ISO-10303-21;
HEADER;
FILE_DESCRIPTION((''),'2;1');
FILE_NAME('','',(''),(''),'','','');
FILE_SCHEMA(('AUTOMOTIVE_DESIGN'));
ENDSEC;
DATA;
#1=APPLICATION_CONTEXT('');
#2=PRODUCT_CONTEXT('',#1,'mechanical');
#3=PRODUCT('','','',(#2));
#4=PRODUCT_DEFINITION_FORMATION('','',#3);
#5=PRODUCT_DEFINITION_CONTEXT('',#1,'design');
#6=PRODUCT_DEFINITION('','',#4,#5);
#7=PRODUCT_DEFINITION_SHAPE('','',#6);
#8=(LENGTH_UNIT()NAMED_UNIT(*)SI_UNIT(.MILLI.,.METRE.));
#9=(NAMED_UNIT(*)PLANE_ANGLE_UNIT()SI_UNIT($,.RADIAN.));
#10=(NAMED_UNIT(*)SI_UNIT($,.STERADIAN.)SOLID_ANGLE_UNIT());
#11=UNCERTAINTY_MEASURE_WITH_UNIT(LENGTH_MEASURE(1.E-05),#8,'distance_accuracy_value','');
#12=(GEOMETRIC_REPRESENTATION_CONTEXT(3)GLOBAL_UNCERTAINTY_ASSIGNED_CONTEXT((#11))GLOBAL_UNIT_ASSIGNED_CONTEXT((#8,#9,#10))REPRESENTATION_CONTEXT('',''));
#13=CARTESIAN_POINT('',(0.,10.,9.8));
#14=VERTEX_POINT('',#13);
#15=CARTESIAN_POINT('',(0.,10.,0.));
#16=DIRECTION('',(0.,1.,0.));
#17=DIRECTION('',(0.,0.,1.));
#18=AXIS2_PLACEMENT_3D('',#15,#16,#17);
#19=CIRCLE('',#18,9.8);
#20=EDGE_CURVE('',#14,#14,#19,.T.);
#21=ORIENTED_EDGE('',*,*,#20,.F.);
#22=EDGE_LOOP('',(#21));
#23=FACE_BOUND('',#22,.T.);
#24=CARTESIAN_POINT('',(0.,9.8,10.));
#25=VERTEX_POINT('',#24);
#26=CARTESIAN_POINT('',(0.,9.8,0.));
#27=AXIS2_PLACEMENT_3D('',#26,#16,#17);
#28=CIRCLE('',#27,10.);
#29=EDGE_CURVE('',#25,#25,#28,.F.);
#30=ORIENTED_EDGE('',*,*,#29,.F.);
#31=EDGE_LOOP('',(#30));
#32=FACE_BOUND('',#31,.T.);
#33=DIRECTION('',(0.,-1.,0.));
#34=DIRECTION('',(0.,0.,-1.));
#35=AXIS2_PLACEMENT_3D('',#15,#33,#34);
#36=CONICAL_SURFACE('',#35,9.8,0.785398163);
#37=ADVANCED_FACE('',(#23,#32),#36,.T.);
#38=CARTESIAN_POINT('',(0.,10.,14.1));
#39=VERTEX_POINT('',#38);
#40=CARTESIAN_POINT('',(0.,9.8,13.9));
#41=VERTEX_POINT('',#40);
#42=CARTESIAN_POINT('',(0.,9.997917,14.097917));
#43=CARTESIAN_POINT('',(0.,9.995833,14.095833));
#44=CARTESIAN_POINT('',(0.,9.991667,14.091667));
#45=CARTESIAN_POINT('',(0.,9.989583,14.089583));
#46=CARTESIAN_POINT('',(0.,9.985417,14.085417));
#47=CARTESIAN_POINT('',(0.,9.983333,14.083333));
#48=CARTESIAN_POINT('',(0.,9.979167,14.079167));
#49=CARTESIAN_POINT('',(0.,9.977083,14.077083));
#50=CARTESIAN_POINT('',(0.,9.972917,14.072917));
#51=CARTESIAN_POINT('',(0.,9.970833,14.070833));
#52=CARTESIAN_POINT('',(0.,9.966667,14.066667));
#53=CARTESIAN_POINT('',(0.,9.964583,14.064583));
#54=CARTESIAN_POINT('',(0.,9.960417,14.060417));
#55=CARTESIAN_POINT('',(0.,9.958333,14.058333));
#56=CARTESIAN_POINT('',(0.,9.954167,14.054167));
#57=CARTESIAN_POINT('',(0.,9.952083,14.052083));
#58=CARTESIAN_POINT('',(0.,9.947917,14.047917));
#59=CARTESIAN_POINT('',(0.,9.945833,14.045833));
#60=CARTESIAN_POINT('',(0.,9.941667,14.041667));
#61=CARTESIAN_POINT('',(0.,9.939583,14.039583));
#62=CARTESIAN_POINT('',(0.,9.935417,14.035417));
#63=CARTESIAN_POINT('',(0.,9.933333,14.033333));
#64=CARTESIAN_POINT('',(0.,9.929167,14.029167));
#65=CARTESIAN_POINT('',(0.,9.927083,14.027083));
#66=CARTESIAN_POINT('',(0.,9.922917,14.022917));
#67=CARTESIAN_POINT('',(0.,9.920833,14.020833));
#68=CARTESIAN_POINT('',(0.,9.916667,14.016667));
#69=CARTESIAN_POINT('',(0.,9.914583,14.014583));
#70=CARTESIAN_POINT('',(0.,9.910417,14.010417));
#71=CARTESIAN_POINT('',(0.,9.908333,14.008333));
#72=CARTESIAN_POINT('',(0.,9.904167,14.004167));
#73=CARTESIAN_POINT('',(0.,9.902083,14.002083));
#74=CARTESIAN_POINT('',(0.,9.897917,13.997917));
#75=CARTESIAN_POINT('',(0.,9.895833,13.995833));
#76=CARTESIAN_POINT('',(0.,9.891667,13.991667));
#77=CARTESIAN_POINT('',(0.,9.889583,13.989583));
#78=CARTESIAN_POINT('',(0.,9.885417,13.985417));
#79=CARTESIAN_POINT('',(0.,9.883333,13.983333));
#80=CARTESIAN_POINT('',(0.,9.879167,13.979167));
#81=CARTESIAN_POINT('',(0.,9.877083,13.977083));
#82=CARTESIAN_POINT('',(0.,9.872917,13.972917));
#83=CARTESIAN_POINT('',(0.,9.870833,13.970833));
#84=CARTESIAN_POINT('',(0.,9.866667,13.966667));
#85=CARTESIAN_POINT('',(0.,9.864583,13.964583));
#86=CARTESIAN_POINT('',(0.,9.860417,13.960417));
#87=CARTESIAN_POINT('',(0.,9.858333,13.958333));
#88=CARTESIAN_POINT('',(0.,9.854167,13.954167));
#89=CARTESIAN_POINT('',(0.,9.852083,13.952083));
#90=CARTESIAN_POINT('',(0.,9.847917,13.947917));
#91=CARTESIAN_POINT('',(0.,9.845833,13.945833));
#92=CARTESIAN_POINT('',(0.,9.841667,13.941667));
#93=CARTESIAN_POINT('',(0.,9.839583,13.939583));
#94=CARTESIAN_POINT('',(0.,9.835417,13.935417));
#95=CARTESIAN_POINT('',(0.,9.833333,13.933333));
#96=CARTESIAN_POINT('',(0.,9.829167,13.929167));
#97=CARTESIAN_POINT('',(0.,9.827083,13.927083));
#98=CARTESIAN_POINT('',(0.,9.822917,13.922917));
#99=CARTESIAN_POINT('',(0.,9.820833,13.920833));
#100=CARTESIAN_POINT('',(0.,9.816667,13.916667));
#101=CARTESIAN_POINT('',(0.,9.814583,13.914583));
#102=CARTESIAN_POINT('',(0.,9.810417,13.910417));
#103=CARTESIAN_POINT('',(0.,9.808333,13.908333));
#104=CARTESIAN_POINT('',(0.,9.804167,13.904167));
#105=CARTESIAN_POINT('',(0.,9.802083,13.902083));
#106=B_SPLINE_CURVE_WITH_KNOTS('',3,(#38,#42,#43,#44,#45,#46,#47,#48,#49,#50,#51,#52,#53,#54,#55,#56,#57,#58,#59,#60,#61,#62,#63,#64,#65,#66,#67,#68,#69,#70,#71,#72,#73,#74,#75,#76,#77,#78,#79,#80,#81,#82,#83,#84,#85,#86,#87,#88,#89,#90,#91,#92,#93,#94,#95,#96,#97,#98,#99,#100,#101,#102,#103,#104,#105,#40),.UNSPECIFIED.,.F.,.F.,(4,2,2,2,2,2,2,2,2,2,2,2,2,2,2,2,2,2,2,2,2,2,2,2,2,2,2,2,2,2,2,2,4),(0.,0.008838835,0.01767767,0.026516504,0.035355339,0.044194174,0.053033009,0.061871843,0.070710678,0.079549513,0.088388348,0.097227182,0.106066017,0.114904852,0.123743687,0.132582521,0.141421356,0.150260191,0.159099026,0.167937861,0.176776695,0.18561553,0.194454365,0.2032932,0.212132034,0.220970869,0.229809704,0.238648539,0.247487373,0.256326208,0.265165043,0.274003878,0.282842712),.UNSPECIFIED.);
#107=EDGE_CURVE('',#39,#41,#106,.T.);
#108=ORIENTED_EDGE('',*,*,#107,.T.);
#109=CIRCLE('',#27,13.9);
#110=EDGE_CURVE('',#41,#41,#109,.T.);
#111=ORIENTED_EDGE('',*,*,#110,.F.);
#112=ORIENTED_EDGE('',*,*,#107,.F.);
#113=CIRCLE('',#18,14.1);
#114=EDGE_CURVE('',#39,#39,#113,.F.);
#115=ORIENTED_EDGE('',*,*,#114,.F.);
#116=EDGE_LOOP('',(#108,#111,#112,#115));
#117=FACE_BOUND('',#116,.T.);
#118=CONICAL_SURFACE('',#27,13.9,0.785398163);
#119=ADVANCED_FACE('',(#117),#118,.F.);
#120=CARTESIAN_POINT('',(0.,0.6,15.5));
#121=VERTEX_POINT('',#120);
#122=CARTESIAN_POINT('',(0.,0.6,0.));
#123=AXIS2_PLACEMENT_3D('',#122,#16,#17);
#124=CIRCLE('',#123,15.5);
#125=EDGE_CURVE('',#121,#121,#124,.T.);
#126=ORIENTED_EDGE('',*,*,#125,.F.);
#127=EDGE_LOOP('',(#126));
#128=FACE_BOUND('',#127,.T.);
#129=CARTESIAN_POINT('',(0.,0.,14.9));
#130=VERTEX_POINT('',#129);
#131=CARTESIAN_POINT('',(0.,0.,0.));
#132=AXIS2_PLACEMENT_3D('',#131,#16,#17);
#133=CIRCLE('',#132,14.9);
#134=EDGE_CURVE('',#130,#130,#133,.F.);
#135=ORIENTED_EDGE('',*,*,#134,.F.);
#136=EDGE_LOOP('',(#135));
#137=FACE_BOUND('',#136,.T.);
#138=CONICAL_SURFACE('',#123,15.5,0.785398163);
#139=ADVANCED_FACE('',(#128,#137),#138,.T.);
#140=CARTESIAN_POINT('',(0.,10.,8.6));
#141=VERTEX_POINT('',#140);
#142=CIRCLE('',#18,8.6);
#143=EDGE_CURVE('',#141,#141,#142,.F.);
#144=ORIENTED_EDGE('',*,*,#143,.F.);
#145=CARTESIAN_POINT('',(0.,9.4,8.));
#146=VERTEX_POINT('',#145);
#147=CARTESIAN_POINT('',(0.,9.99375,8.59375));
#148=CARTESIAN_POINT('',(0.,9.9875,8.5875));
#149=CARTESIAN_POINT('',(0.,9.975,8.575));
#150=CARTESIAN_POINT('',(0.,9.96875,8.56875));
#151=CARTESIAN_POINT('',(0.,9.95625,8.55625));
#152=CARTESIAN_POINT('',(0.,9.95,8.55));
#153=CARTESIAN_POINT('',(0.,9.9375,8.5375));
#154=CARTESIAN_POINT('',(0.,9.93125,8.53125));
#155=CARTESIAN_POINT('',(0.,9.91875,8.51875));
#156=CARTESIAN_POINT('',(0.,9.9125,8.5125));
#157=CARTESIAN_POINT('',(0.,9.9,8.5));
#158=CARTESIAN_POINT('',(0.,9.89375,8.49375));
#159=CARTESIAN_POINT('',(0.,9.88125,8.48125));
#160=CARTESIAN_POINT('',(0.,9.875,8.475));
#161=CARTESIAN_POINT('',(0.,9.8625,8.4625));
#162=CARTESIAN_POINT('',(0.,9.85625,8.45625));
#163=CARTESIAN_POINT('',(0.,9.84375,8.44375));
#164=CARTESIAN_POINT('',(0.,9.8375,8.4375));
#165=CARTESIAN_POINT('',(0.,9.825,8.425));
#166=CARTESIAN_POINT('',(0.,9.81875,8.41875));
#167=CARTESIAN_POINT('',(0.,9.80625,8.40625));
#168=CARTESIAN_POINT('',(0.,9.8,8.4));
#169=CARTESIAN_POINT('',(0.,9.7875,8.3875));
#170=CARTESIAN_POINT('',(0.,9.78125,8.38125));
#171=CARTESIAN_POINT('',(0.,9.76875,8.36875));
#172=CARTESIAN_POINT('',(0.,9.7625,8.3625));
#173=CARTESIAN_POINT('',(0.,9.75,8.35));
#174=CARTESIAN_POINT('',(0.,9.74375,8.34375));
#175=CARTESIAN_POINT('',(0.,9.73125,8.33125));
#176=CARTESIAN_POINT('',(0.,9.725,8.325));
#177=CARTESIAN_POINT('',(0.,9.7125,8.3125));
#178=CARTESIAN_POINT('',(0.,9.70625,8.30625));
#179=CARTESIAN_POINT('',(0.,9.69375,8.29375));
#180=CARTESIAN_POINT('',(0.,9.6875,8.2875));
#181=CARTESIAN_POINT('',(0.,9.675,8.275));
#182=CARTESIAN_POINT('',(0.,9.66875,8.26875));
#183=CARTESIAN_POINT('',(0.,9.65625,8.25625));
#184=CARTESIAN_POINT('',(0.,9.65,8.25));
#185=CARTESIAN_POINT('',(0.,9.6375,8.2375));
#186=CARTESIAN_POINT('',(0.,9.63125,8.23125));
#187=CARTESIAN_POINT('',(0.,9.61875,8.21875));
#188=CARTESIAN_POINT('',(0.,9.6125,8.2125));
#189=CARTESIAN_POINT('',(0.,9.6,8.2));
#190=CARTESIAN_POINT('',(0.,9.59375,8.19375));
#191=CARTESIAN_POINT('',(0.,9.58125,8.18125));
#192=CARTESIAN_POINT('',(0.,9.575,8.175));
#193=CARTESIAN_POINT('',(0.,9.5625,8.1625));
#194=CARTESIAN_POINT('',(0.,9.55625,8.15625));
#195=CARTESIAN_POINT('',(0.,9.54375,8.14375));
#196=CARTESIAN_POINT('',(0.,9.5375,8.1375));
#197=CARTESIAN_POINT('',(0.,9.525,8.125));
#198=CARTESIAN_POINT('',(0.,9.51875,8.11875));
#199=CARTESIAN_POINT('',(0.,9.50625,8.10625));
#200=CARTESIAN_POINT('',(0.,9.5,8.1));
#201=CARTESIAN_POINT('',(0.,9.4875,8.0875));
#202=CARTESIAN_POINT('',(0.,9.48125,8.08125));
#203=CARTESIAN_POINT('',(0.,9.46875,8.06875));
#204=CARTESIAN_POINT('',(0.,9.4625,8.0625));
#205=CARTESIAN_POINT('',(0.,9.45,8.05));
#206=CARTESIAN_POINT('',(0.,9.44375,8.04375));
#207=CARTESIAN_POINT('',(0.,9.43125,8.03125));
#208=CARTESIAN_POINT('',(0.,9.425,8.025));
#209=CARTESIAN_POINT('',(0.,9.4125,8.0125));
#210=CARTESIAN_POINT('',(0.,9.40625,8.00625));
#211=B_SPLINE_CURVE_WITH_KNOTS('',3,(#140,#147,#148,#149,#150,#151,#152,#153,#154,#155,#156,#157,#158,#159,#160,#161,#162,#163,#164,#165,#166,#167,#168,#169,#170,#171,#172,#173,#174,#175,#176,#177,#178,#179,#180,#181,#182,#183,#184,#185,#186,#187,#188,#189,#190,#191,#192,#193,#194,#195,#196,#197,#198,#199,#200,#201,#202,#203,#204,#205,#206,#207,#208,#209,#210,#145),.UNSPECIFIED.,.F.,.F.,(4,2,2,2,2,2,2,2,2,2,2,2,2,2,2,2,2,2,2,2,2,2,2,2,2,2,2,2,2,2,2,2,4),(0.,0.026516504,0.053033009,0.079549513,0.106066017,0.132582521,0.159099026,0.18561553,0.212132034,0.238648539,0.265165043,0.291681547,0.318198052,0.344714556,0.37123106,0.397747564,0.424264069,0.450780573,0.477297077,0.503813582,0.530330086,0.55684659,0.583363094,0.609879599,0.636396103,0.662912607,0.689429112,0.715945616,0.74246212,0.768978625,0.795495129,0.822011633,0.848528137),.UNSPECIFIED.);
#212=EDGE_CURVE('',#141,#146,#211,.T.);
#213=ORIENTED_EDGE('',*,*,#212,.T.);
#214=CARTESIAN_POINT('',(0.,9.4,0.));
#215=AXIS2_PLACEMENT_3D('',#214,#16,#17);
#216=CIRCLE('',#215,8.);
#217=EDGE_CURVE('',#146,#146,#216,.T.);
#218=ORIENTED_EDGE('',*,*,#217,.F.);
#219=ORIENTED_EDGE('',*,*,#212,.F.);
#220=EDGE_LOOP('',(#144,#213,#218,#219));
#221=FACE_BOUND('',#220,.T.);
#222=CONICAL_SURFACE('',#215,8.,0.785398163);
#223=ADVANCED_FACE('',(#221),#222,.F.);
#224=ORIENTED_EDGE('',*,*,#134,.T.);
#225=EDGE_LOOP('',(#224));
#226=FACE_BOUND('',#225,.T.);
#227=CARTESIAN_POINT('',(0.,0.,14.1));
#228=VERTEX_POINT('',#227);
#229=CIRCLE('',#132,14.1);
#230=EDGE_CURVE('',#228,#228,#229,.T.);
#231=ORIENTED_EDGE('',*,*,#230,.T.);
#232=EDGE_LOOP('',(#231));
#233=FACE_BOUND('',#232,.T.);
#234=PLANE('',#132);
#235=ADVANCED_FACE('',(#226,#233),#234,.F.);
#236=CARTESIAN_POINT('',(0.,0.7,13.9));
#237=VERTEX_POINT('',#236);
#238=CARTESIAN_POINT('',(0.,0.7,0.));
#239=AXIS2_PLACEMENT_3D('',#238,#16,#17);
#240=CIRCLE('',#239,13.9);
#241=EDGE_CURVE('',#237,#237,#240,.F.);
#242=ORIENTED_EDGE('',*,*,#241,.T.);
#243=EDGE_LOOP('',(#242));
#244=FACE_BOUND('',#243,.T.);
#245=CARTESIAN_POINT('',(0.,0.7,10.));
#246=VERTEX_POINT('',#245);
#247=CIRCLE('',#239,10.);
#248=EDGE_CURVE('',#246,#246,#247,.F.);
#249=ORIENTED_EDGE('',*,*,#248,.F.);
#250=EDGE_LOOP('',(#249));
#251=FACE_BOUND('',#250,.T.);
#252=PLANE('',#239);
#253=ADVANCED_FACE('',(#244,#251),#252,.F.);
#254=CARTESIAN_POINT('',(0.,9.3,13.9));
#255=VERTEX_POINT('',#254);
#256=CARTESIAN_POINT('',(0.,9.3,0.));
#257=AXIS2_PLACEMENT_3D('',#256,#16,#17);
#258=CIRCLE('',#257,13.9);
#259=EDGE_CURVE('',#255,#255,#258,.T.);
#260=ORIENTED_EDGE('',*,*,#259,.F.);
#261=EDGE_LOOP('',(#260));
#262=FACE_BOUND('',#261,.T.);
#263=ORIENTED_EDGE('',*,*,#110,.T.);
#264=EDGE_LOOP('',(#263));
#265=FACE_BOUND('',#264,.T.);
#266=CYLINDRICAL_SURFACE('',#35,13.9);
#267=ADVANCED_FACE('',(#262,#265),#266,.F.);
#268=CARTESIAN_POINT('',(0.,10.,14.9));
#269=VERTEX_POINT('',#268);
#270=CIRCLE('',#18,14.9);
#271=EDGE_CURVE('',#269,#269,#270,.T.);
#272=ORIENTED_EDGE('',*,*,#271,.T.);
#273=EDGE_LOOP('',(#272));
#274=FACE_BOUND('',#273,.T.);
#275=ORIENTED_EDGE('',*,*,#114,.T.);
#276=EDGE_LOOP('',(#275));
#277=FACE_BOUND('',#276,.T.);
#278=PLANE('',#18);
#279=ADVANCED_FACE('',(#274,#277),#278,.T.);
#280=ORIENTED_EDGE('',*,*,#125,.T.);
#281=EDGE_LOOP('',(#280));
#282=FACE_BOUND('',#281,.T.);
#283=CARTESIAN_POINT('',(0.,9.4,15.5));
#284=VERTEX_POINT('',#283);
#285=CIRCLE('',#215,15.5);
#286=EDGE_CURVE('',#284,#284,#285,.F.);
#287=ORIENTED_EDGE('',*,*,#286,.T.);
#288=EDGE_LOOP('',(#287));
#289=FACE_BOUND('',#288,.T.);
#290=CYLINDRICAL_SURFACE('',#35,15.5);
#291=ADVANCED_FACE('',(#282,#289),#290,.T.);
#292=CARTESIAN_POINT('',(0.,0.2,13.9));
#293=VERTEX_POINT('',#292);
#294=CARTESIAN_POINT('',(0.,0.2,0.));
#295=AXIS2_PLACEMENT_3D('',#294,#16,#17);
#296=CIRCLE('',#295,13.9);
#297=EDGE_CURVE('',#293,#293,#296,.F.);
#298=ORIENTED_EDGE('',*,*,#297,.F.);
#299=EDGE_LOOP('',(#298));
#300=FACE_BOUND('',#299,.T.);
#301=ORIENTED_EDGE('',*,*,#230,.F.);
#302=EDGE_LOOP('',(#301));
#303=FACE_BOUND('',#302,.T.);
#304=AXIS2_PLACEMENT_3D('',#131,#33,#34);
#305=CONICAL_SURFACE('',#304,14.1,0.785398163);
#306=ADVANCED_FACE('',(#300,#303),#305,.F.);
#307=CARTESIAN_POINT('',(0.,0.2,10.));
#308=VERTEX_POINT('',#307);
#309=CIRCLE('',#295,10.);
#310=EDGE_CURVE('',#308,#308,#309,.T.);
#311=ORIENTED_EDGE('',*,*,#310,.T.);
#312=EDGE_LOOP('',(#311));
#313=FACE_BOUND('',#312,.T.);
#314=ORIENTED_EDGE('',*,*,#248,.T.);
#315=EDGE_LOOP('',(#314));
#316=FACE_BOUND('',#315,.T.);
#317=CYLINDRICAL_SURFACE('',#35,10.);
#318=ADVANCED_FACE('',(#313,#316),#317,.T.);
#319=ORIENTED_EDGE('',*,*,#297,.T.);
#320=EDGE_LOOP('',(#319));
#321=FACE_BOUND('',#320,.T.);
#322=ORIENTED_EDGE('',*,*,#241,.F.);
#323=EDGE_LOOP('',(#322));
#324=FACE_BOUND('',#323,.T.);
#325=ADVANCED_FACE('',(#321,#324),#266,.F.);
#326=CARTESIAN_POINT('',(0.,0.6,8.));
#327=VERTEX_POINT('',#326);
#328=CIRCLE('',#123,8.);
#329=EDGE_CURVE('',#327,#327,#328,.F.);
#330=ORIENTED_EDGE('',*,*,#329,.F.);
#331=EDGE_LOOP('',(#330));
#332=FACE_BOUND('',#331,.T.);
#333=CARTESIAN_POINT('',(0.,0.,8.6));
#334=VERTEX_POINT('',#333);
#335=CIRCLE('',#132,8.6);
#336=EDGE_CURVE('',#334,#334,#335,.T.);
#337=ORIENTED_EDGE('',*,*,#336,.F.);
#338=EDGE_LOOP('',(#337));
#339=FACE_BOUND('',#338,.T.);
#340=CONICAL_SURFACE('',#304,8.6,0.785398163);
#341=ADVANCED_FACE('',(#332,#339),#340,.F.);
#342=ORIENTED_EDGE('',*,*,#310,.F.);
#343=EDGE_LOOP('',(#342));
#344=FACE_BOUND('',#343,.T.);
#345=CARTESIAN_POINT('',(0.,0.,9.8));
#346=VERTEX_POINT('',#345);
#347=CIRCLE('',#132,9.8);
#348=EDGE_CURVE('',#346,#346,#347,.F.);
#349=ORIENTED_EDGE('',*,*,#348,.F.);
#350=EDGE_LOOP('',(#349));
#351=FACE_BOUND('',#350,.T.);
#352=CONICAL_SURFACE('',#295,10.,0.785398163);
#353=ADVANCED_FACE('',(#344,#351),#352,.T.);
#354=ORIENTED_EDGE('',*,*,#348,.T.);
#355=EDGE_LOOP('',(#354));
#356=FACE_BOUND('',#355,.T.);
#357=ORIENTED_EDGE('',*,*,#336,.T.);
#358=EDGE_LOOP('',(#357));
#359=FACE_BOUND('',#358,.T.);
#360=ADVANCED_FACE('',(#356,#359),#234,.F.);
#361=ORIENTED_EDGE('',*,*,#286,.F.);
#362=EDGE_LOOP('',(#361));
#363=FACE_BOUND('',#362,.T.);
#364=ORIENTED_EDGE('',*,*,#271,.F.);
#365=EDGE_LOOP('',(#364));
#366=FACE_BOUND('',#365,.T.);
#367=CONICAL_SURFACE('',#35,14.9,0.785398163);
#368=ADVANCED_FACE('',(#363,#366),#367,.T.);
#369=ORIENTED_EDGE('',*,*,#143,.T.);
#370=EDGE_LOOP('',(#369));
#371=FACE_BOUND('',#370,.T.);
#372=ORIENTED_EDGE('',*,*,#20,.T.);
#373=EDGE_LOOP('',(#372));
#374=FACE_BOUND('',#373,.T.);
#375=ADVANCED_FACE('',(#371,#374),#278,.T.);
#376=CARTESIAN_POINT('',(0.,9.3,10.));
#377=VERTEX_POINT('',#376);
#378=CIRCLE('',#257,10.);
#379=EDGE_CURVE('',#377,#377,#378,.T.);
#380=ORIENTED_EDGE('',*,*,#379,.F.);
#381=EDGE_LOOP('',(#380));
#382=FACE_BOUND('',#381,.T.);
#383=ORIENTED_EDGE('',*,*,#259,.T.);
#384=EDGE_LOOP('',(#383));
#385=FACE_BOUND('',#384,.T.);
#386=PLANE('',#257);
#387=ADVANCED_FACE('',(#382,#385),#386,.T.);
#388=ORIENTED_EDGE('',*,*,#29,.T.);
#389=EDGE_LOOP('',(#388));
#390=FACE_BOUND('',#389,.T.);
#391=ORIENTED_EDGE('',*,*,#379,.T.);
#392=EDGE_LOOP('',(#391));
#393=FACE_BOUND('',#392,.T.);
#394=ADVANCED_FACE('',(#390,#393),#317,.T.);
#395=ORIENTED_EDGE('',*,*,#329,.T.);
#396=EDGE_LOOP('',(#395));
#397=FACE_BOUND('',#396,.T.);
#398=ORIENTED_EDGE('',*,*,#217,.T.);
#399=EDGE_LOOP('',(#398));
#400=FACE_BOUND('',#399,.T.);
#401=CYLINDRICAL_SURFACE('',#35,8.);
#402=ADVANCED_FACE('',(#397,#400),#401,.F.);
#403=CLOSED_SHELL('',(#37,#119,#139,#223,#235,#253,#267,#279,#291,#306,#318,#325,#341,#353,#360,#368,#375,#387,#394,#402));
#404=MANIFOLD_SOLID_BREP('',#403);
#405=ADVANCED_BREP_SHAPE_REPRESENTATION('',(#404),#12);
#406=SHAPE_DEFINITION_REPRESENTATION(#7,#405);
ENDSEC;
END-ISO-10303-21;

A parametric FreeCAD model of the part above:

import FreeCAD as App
import Part
import Sketcher

V = App.Vector
Q = App.Units.Quantity


def edges_at(feature, points):
    """Names of the edges that pass closest to the given points."""
    edges = feature.Shape.Edges
    near = lambda p: min(range(len(edges)), key=lambda i: edges[i].distToShape(Part.Vertex(*p))[0])
    return sorted({f"Edge{near(p) + 1}" for p in points})

doc = App.newDocument("Part")
body = doc.addObject("PartDesign::Body", "Body")

# Sketch on XZ plane
sketch1 = doc.addObject("Sketcher::SketchObject", "Sketch")
body.addObject(sketch1)
sketch1.AttachmentSupport = (doc.XZ_Plane, [""])
sketch1.MapMode = "FlatFace"
sketch1.addGeometry([
    Part.Circle(V(0, 0, 0), V(0, 0, 1), 15.5),
    Part.Circle(V(0, 0, 0), V(0, 0, 1), 13.9),
], False)
sketch1.addConstraint([
    Sketcher.Constraint("Coincident", 0, 3, -1, 1),
    Sketcher.Constraint("Coincident", 1, 3, -1, 1),
    Sketcher.Constraint("Diameter", 0, Q("31 mm")),
    Sketcher.Constraint("Diameter", 1, Q("27.8 mm")),
])
pad1 = doc.addObject("PartDesign::Pad", "Pad")
body.addObject(pad1)
pad1.Profile = sketch1
pad1.Length = 10
pad1.Reversed = True
body2 = doc.addObject("PartDesign::Body", "Body001")

# Sketch on XZ plane
sketch2 = doc.addObject("Sketcher::SketchObject", "Sketch001")
body2.addObject(sketch2)
sketch2.AttachmentSupport = (doc.getObject("XZ_Plane001"), [""])
sketch2.MapMode = "FlatFace"
sketch2.addGeometry([
    Part.Circle(V(0, 0, 0), V(0, 0, 1), 10),
    Part.Circle(V(0, 0, 0), V(0, 0, 1), 8),
], False)
sketch2.addConstraint([
    Sketcher.Constraint("Coincident", 0, 3, -1, 1),
    Sketcher.Constraint("Coincident", 1, 3, -1, 1),
    Sketcher.Constraint("Diameter", 0, Q("20 mm")),
    Sketcher.Constraint("Diameter", 1, Q("16 mm")),
])
pad2 = doc.addObject("PartDesign::Pad", "Pad001")
body2.addObject(pad2)
pad2.Profile = sketch2
pad2.Length = 10
pad2.Reversed = True
body.AllowCompound = True
doc.recompute()

boolean = doc.addObject("PartDesign::Boolean", "Boolean")
body.addObject(boolean)
boolean.Type = "Fuse"
boolean.addObjects([body2])

# Sketch on XZ plane
sketch3 = doc.addObject("Sketcher::SketchObject", "Sketch002")
body.addObject(sketch3)
sketch3.AttachmentSupport = (doc.XZ_Plane, [""])
sketch3.MapMode = "FlatFace"
sketch3.AttachmentOffset = App.Placement(V(0, 0, -0.7), App.Rotation())
sketch3.addGeometry([
    Part.Circle(V(0, 0, 0), V(0, 0, 1), 13.9),
    Part.Circle(V(0, 0, 0), V(0, 0, 1), 10),
], False)
sketch3.addConstraint([
    Sketcher.Constraint("Coincident", 0, 3, -1, 1),
    Sketcher.Constraint("Coincident", 1, 3, -1, 1),
    Sketcher.Constraint("Diameter", 1, Q("20 mm")),
    Sketcher.Constraint("Diameter", 0, Q("27.8 mm")),
])
pad3 = doc.addObject("PartDesign::Pad", "Pad002")
body.addObject(pad3)
pad3.Profile = sketch3
pad3.Length = 8.6
pad3.Reversed = True
doc.recompute()

chamfer = doc.addObject("PartDesign::Chamfer", "Chamfer")
body.addObject(chamfer)
chamfer.Base = (pad3, edges_at(pad3, [
    (0, 10, -15.5),
    (0, 10, -8),
    (0, 0, -8),
    (0, 0, -15.5),
]))
chamfer.Size = 0.6
doc.recompute()

chamfer2 = doc.addObject("PartDesign::Chamfer", "Chamfer001")
body.addObject(chamfer2)
chamfer2.Base = (chamfer, edges_at(chamfer, [
    (0, 0, -10),
    (0, 10, -10),
    (0, 0, -13.9),
    (0, 10, -13.9),
]))
chamfer2.Size = 0.2

doc.recompute()
